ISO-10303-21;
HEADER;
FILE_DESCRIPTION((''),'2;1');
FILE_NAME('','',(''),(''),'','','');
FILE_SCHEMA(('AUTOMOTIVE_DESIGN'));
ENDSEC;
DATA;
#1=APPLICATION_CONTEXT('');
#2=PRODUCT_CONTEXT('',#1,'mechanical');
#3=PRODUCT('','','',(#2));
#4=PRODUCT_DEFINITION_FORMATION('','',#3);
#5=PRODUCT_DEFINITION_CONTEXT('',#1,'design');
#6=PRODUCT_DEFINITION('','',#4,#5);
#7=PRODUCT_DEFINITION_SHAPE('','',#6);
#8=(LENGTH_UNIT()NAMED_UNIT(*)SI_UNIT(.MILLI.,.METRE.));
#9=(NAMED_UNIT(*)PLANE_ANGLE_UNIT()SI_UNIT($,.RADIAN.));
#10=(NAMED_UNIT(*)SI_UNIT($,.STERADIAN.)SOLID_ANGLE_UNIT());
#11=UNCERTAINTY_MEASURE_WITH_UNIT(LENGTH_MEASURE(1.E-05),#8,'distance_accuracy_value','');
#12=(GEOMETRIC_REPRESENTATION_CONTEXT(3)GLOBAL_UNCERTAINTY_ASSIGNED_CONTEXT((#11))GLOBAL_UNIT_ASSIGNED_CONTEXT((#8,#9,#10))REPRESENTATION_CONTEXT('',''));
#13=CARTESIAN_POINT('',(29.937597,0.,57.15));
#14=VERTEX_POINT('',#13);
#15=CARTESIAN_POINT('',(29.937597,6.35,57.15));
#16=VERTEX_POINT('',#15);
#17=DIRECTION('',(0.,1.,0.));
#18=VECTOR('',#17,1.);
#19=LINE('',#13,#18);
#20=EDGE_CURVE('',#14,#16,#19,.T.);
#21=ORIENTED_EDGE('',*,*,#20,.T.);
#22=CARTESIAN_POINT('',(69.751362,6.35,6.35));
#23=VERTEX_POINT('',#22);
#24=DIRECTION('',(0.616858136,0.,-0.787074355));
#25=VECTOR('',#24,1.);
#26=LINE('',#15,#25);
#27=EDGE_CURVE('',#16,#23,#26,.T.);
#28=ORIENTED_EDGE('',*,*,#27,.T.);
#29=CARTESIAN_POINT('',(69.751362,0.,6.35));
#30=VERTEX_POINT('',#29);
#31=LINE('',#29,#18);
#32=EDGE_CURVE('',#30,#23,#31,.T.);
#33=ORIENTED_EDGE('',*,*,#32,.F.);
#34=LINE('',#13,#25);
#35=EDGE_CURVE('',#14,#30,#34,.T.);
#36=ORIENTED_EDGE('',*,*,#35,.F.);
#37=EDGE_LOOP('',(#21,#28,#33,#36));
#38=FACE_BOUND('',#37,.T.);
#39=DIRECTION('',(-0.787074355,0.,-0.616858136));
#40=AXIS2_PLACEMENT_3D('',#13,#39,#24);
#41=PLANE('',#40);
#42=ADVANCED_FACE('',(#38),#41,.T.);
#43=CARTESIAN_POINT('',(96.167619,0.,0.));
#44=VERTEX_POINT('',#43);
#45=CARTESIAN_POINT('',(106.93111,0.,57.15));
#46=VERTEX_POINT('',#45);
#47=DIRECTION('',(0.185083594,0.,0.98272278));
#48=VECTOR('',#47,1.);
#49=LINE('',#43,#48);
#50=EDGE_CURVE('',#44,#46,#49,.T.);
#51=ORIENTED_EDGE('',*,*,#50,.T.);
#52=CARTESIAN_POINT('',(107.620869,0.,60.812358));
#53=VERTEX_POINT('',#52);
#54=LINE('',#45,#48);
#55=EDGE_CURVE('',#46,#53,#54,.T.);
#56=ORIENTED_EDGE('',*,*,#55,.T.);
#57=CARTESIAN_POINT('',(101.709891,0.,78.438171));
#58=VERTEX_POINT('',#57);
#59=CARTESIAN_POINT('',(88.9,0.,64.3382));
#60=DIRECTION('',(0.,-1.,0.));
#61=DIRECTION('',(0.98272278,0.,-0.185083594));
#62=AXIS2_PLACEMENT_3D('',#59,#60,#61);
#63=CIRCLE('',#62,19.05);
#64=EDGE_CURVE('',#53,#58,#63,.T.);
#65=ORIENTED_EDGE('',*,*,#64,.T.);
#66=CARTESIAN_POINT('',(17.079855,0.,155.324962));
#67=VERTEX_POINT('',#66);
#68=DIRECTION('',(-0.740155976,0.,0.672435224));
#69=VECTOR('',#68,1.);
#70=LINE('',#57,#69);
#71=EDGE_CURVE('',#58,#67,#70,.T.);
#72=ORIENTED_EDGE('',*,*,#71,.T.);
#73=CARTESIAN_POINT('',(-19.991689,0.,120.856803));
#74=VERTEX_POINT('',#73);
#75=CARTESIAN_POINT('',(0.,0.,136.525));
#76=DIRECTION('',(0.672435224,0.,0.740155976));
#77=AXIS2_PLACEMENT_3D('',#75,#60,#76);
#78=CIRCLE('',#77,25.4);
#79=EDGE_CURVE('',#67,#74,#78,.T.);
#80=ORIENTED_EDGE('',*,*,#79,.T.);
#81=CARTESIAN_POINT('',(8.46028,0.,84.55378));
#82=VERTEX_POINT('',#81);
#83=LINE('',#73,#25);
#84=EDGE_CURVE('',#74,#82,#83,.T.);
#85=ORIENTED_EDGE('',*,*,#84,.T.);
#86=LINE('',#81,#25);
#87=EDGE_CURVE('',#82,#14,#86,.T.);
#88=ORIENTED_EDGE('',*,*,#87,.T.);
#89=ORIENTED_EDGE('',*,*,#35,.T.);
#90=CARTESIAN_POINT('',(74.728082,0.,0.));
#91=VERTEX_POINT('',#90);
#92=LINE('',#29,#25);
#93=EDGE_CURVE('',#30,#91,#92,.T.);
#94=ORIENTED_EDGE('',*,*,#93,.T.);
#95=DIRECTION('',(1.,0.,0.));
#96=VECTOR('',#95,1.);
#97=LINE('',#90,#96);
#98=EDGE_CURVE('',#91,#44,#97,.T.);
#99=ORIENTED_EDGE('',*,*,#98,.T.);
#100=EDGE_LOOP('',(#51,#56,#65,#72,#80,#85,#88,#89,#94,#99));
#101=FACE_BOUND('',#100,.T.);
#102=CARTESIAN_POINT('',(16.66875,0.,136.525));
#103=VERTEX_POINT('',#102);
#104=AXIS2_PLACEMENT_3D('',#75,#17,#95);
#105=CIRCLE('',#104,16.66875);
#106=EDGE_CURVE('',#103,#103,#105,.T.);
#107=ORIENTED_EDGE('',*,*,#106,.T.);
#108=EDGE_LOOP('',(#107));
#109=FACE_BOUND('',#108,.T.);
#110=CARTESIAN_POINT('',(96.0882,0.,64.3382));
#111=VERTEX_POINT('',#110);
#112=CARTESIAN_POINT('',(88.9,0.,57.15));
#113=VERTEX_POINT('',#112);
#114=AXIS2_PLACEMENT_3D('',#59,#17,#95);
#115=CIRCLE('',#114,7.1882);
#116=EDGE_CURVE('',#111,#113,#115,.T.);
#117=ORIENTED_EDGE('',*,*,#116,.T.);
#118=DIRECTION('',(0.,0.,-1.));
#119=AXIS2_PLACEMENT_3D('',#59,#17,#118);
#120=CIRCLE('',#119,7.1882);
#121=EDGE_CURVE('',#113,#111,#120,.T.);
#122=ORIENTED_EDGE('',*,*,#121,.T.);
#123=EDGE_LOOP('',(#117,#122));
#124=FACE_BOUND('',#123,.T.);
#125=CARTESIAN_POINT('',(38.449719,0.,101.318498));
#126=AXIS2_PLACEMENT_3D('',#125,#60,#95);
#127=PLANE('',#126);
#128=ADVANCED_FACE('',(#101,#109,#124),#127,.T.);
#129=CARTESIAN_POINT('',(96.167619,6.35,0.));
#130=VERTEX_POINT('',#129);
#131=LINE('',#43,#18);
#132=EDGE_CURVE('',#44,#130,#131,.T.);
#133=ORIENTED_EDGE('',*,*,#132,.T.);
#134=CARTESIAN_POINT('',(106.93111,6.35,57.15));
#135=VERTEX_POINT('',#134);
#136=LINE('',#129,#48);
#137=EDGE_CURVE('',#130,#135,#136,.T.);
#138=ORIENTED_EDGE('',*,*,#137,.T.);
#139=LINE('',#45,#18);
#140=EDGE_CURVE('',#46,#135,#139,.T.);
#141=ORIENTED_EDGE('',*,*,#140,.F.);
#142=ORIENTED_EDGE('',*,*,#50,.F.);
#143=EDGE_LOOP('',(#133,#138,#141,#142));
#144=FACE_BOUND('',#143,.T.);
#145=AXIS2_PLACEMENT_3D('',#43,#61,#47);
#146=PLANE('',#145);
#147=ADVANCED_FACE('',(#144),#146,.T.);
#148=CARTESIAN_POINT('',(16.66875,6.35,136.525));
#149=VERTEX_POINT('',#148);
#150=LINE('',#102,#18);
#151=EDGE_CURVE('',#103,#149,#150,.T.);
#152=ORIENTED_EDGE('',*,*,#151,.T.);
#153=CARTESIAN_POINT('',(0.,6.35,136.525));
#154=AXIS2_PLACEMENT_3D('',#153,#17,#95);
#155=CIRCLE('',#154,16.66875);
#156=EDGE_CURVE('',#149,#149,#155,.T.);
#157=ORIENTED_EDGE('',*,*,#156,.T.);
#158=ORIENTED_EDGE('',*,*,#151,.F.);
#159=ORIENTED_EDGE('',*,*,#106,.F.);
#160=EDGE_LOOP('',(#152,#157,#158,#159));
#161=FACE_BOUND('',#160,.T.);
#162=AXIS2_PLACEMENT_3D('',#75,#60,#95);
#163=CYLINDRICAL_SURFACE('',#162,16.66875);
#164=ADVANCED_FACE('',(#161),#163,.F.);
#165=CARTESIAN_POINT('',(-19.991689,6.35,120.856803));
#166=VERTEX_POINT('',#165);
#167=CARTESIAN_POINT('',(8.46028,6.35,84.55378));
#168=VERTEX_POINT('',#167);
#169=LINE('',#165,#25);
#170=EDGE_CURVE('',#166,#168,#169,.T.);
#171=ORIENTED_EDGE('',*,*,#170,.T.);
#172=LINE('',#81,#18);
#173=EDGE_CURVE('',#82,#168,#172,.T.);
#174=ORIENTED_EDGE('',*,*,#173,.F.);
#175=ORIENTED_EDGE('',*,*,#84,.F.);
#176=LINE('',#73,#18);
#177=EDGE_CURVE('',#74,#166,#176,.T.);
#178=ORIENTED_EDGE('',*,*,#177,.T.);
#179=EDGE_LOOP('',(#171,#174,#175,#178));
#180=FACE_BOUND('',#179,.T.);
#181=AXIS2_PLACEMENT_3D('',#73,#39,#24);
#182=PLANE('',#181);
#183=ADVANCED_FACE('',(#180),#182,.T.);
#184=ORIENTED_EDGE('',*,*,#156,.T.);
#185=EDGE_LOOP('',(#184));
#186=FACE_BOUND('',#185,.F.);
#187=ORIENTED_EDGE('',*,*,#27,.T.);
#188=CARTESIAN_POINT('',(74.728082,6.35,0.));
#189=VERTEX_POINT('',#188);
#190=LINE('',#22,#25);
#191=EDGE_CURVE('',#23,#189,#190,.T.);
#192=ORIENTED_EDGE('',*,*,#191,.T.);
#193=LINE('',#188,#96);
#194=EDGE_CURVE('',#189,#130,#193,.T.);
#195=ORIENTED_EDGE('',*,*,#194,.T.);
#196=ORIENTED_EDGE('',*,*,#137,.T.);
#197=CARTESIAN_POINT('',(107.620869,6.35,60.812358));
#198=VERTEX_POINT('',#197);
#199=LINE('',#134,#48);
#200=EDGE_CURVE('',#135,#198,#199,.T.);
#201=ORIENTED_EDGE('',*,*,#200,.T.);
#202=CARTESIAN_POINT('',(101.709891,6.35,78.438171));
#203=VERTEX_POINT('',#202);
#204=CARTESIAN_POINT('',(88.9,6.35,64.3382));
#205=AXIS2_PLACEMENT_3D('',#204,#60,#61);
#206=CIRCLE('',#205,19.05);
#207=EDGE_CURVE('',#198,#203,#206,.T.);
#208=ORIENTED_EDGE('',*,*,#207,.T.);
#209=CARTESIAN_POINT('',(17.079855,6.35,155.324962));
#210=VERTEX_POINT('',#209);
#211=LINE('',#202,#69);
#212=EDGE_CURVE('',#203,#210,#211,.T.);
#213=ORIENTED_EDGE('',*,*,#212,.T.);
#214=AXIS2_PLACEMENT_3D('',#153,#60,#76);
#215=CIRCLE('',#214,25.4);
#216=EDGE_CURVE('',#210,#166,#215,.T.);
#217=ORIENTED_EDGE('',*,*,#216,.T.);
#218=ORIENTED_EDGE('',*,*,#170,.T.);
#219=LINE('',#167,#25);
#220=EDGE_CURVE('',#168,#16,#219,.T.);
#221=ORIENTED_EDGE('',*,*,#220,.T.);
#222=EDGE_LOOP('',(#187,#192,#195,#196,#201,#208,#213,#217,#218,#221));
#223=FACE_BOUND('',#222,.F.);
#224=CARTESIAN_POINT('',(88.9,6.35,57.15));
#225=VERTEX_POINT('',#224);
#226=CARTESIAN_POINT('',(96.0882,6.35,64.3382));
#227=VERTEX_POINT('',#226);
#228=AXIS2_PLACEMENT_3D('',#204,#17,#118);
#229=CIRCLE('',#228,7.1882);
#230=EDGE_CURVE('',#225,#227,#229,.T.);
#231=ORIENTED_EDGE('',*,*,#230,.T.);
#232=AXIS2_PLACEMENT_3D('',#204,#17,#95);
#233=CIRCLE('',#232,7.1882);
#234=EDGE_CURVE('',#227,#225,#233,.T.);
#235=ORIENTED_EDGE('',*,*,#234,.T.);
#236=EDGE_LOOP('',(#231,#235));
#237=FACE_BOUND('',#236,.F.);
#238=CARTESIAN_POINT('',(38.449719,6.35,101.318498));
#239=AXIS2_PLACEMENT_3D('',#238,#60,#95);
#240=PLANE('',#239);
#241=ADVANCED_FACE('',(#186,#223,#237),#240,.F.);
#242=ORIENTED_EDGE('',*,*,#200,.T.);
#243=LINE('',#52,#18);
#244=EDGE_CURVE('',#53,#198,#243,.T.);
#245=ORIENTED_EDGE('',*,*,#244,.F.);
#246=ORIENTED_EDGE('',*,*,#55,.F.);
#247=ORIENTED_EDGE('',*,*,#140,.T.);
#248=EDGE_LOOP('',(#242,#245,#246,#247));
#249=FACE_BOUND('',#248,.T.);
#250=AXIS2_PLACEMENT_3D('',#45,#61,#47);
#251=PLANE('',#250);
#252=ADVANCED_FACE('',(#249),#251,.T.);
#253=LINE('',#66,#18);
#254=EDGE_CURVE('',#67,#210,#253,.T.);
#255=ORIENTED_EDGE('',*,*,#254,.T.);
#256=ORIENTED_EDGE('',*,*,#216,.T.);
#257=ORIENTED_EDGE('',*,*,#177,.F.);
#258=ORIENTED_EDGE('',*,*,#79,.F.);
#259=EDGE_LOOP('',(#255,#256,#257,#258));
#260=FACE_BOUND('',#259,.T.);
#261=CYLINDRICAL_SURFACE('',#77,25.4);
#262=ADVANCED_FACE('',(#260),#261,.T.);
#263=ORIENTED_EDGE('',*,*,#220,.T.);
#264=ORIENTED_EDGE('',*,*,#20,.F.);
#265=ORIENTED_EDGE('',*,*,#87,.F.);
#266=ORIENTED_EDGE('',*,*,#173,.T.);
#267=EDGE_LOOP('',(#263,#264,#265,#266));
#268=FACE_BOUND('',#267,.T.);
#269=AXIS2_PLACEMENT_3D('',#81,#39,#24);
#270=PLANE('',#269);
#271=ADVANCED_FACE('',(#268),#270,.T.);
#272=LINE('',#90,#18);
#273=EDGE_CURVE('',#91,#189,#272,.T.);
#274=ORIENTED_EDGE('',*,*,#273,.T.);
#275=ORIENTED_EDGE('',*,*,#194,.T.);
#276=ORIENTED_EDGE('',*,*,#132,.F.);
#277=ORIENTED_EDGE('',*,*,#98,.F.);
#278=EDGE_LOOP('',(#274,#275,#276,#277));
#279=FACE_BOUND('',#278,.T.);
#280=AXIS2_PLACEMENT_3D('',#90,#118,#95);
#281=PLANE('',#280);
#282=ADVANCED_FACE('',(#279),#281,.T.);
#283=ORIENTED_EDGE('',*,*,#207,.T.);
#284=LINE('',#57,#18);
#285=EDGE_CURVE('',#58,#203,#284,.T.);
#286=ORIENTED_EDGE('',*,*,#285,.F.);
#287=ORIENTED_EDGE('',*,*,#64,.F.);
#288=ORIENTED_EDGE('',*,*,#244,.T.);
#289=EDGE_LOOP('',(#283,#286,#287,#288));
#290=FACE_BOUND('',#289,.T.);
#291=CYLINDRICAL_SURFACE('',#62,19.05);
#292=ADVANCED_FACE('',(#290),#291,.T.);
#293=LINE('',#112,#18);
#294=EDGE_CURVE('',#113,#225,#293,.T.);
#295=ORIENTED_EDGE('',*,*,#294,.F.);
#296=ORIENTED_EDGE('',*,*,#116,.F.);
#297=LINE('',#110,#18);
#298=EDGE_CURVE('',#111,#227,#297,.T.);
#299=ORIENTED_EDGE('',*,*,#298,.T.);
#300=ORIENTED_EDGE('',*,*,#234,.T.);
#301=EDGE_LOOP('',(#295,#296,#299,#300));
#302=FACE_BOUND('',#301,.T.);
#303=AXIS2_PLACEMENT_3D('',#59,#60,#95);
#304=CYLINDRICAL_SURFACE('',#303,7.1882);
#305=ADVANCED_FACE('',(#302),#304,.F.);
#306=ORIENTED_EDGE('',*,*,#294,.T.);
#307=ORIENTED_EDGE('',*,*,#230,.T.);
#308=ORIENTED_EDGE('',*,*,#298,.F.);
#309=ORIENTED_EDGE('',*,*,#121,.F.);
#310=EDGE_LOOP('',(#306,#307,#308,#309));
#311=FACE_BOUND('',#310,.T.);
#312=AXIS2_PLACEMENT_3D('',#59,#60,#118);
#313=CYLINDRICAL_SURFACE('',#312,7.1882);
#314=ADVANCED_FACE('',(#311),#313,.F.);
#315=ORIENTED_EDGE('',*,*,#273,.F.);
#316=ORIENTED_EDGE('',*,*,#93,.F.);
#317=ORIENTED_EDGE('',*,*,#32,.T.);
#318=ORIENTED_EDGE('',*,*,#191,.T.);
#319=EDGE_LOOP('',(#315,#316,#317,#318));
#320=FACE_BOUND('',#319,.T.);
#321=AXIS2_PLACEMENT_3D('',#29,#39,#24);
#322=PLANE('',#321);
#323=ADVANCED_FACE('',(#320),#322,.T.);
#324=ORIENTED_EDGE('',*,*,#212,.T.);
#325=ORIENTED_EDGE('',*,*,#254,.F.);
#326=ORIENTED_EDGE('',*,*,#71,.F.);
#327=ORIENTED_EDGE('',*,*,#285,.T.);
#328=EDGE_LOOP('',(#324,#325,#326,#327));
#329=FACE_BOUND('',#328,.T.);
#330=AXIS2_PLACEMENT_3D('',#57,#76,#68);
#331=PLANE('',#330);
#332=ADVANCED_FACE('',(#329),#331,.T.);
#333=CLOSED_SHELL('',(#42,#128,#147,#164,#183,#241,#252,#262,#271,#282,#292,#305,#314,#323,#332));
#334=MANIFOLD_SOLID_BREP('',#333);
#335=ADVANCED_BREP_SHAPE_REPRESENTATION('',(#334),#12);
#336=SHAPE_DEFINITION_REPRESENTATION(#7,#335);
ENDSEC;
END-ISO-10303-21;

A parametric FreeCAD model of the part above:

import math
import FreeCAD as App
import Part
import Sketcher

V = App.Vector
Q = App.Units.Quantity

doc = App.newDocument("Part")
body = doc.addObject("PartDesign::Body", "Body")

sketch1 = body.newObject("Sketcher::SketchObject", "Sketch")
sketch1.AttachmentSupport = (doc.getObject("XZ_Plane"), [""])
sketch1.MapMode = "FlatFace"
sketch1.addGeometry(Part.ArcOfCircle(Part.Circle(V(88.9, 64.3, 0), V(0, 0, 1), 19.1), math.radians(-11), math.radians(48)), False)
sketch1.addGeometry(Part.LineSegment(V(101.7, 78.4, 0), V(17.1, 155.3, 0)), False)
sketch1.addGeometry(Part.ArcOfCircle(Part.Circle(V(0, 136.5, 0), V(0, 0, 1), 25.4), math.radians(48), math.radians(218)), False)
sketch1.addGeometry(Part.LineSegment(V(-20, 120.9, 0), V(8.5, 84.6, 0)), False)
sketch1.addGeometry(Part.LineSegment(V(8.5, 84.6, 0), V(29.9, 57.1, 0)), False)
sketch1.addGeometry(Part.LineSegment(V(29.9, 57.1, 0), V(69.8, 6.3, 0)), False)
sketch1.addGeometry(Part.LineSegment(V(69.8, 6.3, 0), V(74.7, 0, 0)), False)
sketch1.addGeometry(Part.LineSegment(V(74.7, 0, 0), V(96.2, 0, 0)), False)
sketch1.addGeometry(Part.LineSegment(V(96.2, 0, 0), V(106.9, 57.1, 0)), False)
sketch1.addGeometry(Part.LineSegment(V(106.9, 57.1, 0), V(107.6, 60.8, 0)), False)
sketch1.addGeometry(Part.ArcOfCircle(Part.Circle(V(88.9, 64.3, 0), V(0, 0, 1), 7.2), math.radians(-90), math.radians(0)), False)
sketch1.addGeometry(Part.ArcOfCircle(Part.Circle(V(88.9, 64.3, 0), V(0, 0, 1), 7.2), math.radians(0), math.radians(270)), False)
sketch1.addGeometry(Part.Circle(V(0, 136.5, 0), V(0, 0, 1), 16.7), False)
sketch1.addConstraint(Sketcher.Constraint("Tangent", 0, 2, 1, 1))
sketch1.addConstraint(Sketcher.Constraint("Tangent", 1, 2, 2, 1))
sketch1.addConstraint(Sketcher.Constraint("Tangent", 2, 2, 3, 1))
sketch1.addConstraint(Sketcher.Constraint("Coincident", 3, 2, 4, 1))
sketch1.addConstraint(Sketcher.Constraint("Coincident", 4, 2, 5, 1))
sketch1.addConstraint(Sketcher.Constraint("Coincident", 5, 2, 6, 1))
sketch1.addConstraint(Sketcher.Constraint("Coincident", 6, 2, 7, 1))
sketch1.addConstraint(Sketcher.Constraint("Coincident", 7, 2, 8, 1))
sketch1.addConstraint(Sketcher.Constraint("Coincident", 8, 2, 9, 1))
sketch1.addConstraint(Sketcher.Constraint("Tangent", 9, 2, 0, 1))
sketch1.addConstraint(Sketcher.Constraint("Tangent", 10, 1, 11, 2))
sketch1.addConstraint(Sketcher.Constraint("Coincident", 11, 1, 10, 2))
sketch1.addConstraint(Sketcher.Constraint("Horizontal", 7))
sketch1.addConstraint(Sketcher.Constraint("Coincident", 10, 3, 0, 3))
sketch1.addConstraint(Sketcher.Constraint("Coincident", 12, 3, 2, 3))
sketch1.addConstraint(Sketcher.Constraint("PointOnObject", 2, 3, -2))
sketch1.addConstraint(Sketcher.Constraint("PointOnObject", 6, 2, -1))
sketch1.addConstraint(Sketcher.Constraint("Parallel", 3, 4))
sketch1.addConstraint(Sketcher.Constraint("Parallel", 4, 5))
sketch1.addConstraint(Sketcher.Constraint("Parallel", 5, 6))
sketch1.addConstraint(Sketcher.Constraint("Parallel", 8, 9))
sketch1.addConstraint(Sketcher.Constraint("Horizontal", 4, 2, 8, 2))
sketch1.addConstraint(Sketcher.Constraint("Horizontal", 8, 2, 10, 1))
sketch1.addConstraint(Sketcher.Constraint("Horizontal", 10, 3, 11, 1))
sketch1.addConstraint(Sketcher.Constraint("Vertical", 11, 3, 10, 1))
sketch1.addConstraint(Sketcher.Constraint("Radius", 2, Q("1 in")))
sketch1.addConstraint(Sketcher.Constraint("Radius", 0, Q("0.75 in")))
sketch1.addConstraint(Sketcher.Constraint("Diameter", 12, Q("1.3125 in")))
sketch1.addConstraint(Sketcher.Constraint("Radius", 10, Q("0.283 in")))
sketch1.addConstraint(Sketcher.Constraint("DistanceY", 5, 2, 4, 2, Q("2 in")))
sketch1.addConstraint(Sketcher.Constraint("DistanceX", -1, 1, 0, 3, Q("3.5 in")))
sketch1.addConstraint(Sketcher.Constraint("DistanceY", -1, 1, 4, 2, Q("2.25 in")))
sketch1.addConstraint(Sketcher.Constraint("DistanceY", -1, 1, 2, 3, Q("5.375 in")))
sketch1.addConstraint(Sketcher.Constraint("Distance", 4, 34.81727))
sketch1.addConstraint(Sketcher.Constraint("DistanceX", 7, 1, 7, 2, 21.439537))
sketch1.addConstraint(Sketcher.Constraint("DistanceX", -1, 1, 3, 2, 8.46028))
pad1 = body.newObject("PartDesign::Pad", "Pad")
pad1.Profile = sketch1
pad1.Length = Q("0.25 in")
pad1.Reversed = True

doc.recompute()
